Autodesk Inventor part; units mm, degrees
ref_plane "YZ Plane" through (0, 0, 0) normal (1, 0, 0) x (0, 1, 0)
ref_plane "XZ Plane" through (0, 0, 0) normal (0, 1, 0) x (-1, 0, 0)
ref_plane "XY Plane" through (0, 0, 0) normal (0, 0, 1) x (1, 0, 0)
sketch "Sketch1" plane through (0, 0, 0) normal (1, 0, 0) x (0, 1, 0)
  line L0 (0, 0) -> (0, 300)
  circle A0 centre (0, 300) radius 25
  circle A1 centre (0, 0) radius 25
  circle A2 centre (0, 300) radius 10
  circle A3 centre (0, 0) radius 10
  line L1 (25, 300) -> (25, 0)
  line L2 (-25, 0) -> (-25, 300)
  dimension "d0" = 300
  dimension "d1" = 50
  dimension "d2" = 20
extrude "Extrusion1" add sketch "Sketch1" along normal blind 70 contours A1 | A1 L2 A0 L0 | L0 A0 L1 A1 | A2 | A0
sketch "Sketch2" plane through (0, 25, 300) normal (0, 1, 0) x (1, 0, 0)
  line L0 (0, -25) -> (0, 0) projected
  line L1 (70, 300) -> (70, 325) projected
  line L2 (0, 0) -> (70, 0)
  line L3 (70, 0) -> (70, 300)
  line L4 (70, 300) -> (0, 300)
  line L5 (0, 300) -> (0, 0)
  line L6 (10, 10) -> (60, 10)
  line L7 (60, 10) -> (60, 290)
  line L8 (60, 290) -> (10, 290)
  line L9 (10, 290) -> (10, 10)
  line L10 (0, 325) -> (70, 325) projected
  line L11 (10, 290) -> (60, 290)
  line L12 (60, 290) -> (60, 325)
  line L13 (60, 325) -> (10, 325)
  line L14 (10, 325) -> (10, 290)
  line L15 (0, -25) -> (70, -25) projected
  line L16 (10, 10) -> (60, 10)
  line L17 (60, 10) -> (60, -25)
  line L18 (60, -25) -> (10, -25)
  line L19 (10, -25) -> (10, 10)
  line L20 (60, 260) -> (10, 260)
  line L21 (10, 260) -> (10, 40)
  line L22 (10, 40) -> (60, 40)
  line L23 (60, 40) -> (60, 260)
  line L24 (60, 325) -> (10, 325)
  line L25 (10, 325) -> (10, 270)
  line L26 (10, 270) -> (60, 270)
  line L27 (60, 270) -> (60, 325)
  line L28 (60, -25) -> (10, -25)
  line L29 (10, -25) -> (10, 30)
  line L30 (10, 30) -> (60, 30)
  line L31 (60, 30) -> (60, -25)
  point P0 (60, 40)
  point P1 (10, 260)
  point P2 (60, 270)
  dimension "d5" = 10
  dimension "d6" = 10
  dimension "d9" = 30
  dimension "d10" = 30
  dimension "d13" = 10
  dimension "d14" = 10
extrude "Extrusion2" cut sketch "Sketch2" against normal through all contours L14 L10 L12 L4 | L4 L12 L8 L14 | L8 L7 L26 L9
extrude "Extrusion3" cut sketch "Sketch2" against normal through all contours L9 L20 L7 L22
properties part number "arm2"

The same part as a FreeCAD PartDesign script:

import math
import FreeCAD as App
import Part
import Sketcher
Q = App.Units.Quantity

doc = App.newDocument("Part")
body = doc.addObject("PartDesign::Body", "Body")

# Sketch on YZ plane
sketch1 = body.newObject("Sketcher::SketchObject", "Sketch")
sketch1.AttachmentSupport = (doc.getObject("YZ_Plane"), [""])
sketch1.MapMode = "FlatFace"
sketch1.addGeometry([
    Part.ArcOfCircle(Part.Circle(App.Vector(0, 0, 0), App.Vector(0, 0, 1), 25), math.radians(180), math.radians(360)),  # 0
    Part.LineSegment(App.Vector(25, 0, 0), App.Vector(25, 300, 0)),  # 1
    Part.ArcOfCircle(Part.Circle(App.Vector(0, 300, 0), App.Vector(0, 0, 1), 25), math.radians(0), math.radians(180)),  # 2
    Part.LineSegment(App.Vector(-25, 300, 0), App.Vector(-25, 0, 0)),  # 3
    Part.Circle(App.Vector(0, 0, 0), App.Vector(0, 0, 1), 10),  # 4
], False)
sketch1.addConstraint([
    Sketcher.Constraint("Tangent", 0, 2, 1, 1),
    Sketcher.Constraint("Tangent", 1, 2, 2, 1),
    Sketcher.Constraint("Tangent", 2, 2, 3, 1),
    Sketcher.Constraint("Tangent", 3, 2, 0, 1),
    Sketcher.Constraint("Vertical", 1),
    Sketcher.Constraint("Vertical", 3),
    Sketcher.Constraint("Coincident", 0, 3, -1, 1),
    Sketcher.Constraint("Coincident", 4, 3, -1, 1),
    Sketcher.Constraint("Diameter", 4, Q("20 mm")),
    Sketcher.Constraint("Radius", 0, Q("25 mm")),
    Sketcher.Constraint("DistanceY", 1, 1, 1, 2, Q("300 mm")),
])
pad1 = body.newObject("PartDesign::Pad", "Pad")
pad1.Profile = sketch1
pad1.Length = 70

# Sketch on XZ plane
sketch2 = body.newObject("Sketcher::SketchObject", "Sketch001")
sketch2.AttachmentSupport = (doc.getObject("XZ_Plane"), [""])
sketch2.MapMode = "FlatFace"
sketch2.AttachmentOffset = App.Placement(App.Vector(0, 0, -25), App.Rotation())
sketch2.addGeometry([
    Part.LineSegment(App.Vector(10, -25, 0), App.Vector(10, 30, 0)),
    Part.LineSegment(App.Vector(10, 30, 0), App.Vector(60, 30, 0)),
    Part.LineSegment(App.Vector(60, 30, 0), App.Vector(60, -25, 0)),
    Part.LineSegment(App.Vector(60, -25, 0), App.Vector(10, -25, 0)),
], False)
sketch2.addConstraint([
    Sketcher.Constraint("Coincident", 0, 2, 1, 1),
    Sketcher.Constraint("Coincident", 1, 2, 2, 1),
    Sketcher.Constraint("Coincident", 2, 2, 3, 1),
    Sketcher.Constraint("Coincident", 3, 2, 0, 1),
    Sketcher.Constraint("Vertical", 0),
    Sketcher.Constraint("Horizontal", 1),
    Sketcher.Constraint("Vertical", 2),
    Sketcher.Constraint("Horizontal", 3),
    Sketcher.Constraint("DistanceX", -1, 1, 0, 2, Q("10 mm")),
    Sketcher.Constraint("DistanceY", -1, 1, 0, 2, Q("30 mm")),
    Sketcher.Constraint("DistanceX", 1, 1, 1, 2, Q("50 mm")),
    Sketcher.Constraint("DistanceY", 0, 1, 0, 2, Q("55 mm")),
])
pocket1 = body.newObject("PartDesign::Pocket", "Pocket")
pocket1.Profile = sketch2
pocket1.Type = "ThroughAll"
pocket1.Reversed = True

# Sketch on XZ plane
sketch3 = body.newObject("Sketcher::SketchObject", "Sketch002")
sketch3.AttachmentSupport = (doc.getObject("XZ_Plane"), [""])
sketch3.MapMode = "FlatFace"
sketch3.AttachmentOffset = App.Placement(App.Vector(0, 0, -25), App.Rotation())
sketch3.addGeometry([
    Part.LineSegment(App.Vector(10, 40, 0), App.Vector(10, 260, 0)),
    Part.LineSegment(App.Vector(10, 260, 0), App.Vector(60, 260, 0)),
    Part.LineSegment(App.Vector(60, 260, 0), App.Vector(60, 40, 0)),
    Part.LineSegment(App.Vector(60, 40, 0), App.Vector(10, 40, 0)),
], False)
sketch3.addConstraint([
    Sketcher.Constraint("Coincident", 0, 2, 1, 1),
    Sketcher.Constraint("Coincident", 1, 2, 2, 1),
    Sketcher.Constraint("Coincident", 2, 2, 3, 1),
    Sketcher.Constraint("Coincident", 3, 2, 0, 1),
    Sketcher.Constraint("Vertical", 0),
    Sketcher.Constraint("Horizontal", 1),
    Sketcher.Constraint("Vertical", 2),
    Sketcher.Constraint("Horizontal", 3),
    Sketcher.Constraint("DistanceX", -1, 1, 0, 2, Q("10 mm")),
    Sketcher.Constraint("DistanceX", 1, 1, 1, 2, Q("50 mm")),
    Sketcher.Constraint("DistanceY", 0, 1, 0, 2, Q("220 mm")),
    Sketcher.Constraint("DistanceY", -1, 1, 0, 2, Q("260 mm")),
])
pocket2 = body.newObject("PartDesign::Pocket", "Pocket001")
pocket2.Profile = sketch3
pocket2.Type = "ThroughAll"
pocket2.Reversed = True

doc.recompute()
